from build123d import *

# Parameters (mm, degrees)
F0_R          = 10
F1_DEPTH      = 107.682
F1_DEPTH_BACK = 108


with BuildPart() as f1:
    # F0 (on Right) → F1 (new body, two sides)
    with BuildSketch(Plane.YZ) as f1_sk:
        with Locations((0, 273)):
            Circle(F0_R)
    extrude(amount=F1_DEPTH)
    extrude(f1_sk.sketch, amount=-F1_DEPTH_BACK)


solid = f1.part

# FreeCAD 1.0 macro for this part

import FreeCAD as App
import Part
import Sketcher

V = App.Vector
Q = App.Units.Quantity

doc = App.newDocument("Part")
body = doc.addObject("PartDesign::Body", "Body")

# Sketch on YZ plane
sketch1 = doc.addObject("Sketcher::SketchObject", "Sketch")
body.addObject(sketch1)
sketch1.AttachmentSupport = (doc.YZ_Plane, [""])
sketch1.MapMode = "FlatFace"
sketch1.addGeometry(Part.Circle(V(0, 273, 0), V(0, 0, 1), 10), False)
sketch1.addConstraint(Sketcher.Constraint("PointOnObject", 0, 3, -2))
sketch1.addConstraint(Sketcher.Constraint("Diameter", 0, Q("20 mm")))
sketch1.addConstraint(Sketcher.Constraint("DistanceY", -1, 1, 0, 3, Q("273 mm")))
pad1 = doc.addObject("PartDesign::Pad", "Pad")
body.addObject(pad1)
pad1.Profile = sketch1
pad1.Type = "TwoLengths"
pad1.Length = 107.682
pad1.Length2 = 108

doc.recompute()
